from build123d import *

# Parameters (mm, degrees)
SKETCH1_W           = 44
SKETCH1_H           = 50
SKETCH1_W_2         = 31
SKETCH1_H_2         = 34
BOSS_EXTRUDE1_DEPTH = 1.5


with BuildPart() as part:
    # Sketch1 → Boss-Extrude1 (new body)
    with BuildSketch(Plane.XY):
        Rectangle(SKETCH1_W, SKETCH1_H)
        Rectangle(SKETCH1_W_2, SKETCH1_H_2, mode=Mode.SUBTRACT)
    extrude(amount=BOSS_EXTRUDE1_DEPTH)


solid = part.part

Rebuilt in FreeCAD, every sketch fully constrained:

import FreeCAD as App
import Part
import Sketcher
from FreeCAD import Vector


def add_polygon(sketch, points):
    """Adds a closed chain of lines whose ends are joined by coincident constraints."""
    first, n = sketch.GeometryCount, len(points)
    for a, b in zip(points, points[1:] + points[:1]):
        sketch.addGeometry(Part.LineSegment(App.Vector(*a, 0), App.Vector(*b, 0)), False)
    for i in range(n):
        sketch.addConstraint(Sketcher.Constraint("Coincident", first + i, 2, first + (i + 1) % n, 1))

doc = App.newDocument("Part")
body = doc.addObject("PartDesign::Body", "Body")

# Sketch on XY plane
sketch1 = body.newObject("Sketcher::SketchObject", "Sketch")
sketch1.AttachmentSupport = (doc.getObject("XY_Plane"), [""])
sketch1.MapMode = "FlatFace"
add_polygon(sketch1, [(-22, 25), (-22, -25), (22, -25), (22, 25)])  # lines 0-3
add_polygon(sketch1, [(16, -17), (-16, -17), (-16, 17), (16, 17)])  # lines 4-7
sketch1.addConstraint([
    Sketcher.Constraint("Vertical", 0),
    Sketcher.Constraint("Horizontal", 1),
    Sketcher.Constraint("Vertical", 2),
    Sketcher.Constraint("Horizontal", 3),
    Sketcher.Constraint("Horizontal", 4),
    Sketcher.Constraint("Vertical", 5),
    Sketcher.Constraint("Horizontal", 6),
    Sketcher.Constraint("Vertical", 7),
    Sketcher.Constraint("Symmetric", 0, 2, 2, 2, -1, 1),
    Sketcher.Constraint("Symmetric", 4, 2, 6, 2, -1, 1),
    Sketcher.Constraint("DistanceX", 1, 1, 1, 2, 44.0),
    Sketcher.Constraint("DistanceX", 4, 2, 4, 1, 31.0),
    Sketcher.Constraint("DistanceY", 0, 2, 0, 1, 50.0),
    Sketcher.Constraint("DistanceY", 5, 1, 5, 2, 34.0),
])
pad1 = body.newObject("PartDesign::Pad", "Pad")
pad1.Profile = sketch1
pad1.Length = 1.5

doc.recompute()
